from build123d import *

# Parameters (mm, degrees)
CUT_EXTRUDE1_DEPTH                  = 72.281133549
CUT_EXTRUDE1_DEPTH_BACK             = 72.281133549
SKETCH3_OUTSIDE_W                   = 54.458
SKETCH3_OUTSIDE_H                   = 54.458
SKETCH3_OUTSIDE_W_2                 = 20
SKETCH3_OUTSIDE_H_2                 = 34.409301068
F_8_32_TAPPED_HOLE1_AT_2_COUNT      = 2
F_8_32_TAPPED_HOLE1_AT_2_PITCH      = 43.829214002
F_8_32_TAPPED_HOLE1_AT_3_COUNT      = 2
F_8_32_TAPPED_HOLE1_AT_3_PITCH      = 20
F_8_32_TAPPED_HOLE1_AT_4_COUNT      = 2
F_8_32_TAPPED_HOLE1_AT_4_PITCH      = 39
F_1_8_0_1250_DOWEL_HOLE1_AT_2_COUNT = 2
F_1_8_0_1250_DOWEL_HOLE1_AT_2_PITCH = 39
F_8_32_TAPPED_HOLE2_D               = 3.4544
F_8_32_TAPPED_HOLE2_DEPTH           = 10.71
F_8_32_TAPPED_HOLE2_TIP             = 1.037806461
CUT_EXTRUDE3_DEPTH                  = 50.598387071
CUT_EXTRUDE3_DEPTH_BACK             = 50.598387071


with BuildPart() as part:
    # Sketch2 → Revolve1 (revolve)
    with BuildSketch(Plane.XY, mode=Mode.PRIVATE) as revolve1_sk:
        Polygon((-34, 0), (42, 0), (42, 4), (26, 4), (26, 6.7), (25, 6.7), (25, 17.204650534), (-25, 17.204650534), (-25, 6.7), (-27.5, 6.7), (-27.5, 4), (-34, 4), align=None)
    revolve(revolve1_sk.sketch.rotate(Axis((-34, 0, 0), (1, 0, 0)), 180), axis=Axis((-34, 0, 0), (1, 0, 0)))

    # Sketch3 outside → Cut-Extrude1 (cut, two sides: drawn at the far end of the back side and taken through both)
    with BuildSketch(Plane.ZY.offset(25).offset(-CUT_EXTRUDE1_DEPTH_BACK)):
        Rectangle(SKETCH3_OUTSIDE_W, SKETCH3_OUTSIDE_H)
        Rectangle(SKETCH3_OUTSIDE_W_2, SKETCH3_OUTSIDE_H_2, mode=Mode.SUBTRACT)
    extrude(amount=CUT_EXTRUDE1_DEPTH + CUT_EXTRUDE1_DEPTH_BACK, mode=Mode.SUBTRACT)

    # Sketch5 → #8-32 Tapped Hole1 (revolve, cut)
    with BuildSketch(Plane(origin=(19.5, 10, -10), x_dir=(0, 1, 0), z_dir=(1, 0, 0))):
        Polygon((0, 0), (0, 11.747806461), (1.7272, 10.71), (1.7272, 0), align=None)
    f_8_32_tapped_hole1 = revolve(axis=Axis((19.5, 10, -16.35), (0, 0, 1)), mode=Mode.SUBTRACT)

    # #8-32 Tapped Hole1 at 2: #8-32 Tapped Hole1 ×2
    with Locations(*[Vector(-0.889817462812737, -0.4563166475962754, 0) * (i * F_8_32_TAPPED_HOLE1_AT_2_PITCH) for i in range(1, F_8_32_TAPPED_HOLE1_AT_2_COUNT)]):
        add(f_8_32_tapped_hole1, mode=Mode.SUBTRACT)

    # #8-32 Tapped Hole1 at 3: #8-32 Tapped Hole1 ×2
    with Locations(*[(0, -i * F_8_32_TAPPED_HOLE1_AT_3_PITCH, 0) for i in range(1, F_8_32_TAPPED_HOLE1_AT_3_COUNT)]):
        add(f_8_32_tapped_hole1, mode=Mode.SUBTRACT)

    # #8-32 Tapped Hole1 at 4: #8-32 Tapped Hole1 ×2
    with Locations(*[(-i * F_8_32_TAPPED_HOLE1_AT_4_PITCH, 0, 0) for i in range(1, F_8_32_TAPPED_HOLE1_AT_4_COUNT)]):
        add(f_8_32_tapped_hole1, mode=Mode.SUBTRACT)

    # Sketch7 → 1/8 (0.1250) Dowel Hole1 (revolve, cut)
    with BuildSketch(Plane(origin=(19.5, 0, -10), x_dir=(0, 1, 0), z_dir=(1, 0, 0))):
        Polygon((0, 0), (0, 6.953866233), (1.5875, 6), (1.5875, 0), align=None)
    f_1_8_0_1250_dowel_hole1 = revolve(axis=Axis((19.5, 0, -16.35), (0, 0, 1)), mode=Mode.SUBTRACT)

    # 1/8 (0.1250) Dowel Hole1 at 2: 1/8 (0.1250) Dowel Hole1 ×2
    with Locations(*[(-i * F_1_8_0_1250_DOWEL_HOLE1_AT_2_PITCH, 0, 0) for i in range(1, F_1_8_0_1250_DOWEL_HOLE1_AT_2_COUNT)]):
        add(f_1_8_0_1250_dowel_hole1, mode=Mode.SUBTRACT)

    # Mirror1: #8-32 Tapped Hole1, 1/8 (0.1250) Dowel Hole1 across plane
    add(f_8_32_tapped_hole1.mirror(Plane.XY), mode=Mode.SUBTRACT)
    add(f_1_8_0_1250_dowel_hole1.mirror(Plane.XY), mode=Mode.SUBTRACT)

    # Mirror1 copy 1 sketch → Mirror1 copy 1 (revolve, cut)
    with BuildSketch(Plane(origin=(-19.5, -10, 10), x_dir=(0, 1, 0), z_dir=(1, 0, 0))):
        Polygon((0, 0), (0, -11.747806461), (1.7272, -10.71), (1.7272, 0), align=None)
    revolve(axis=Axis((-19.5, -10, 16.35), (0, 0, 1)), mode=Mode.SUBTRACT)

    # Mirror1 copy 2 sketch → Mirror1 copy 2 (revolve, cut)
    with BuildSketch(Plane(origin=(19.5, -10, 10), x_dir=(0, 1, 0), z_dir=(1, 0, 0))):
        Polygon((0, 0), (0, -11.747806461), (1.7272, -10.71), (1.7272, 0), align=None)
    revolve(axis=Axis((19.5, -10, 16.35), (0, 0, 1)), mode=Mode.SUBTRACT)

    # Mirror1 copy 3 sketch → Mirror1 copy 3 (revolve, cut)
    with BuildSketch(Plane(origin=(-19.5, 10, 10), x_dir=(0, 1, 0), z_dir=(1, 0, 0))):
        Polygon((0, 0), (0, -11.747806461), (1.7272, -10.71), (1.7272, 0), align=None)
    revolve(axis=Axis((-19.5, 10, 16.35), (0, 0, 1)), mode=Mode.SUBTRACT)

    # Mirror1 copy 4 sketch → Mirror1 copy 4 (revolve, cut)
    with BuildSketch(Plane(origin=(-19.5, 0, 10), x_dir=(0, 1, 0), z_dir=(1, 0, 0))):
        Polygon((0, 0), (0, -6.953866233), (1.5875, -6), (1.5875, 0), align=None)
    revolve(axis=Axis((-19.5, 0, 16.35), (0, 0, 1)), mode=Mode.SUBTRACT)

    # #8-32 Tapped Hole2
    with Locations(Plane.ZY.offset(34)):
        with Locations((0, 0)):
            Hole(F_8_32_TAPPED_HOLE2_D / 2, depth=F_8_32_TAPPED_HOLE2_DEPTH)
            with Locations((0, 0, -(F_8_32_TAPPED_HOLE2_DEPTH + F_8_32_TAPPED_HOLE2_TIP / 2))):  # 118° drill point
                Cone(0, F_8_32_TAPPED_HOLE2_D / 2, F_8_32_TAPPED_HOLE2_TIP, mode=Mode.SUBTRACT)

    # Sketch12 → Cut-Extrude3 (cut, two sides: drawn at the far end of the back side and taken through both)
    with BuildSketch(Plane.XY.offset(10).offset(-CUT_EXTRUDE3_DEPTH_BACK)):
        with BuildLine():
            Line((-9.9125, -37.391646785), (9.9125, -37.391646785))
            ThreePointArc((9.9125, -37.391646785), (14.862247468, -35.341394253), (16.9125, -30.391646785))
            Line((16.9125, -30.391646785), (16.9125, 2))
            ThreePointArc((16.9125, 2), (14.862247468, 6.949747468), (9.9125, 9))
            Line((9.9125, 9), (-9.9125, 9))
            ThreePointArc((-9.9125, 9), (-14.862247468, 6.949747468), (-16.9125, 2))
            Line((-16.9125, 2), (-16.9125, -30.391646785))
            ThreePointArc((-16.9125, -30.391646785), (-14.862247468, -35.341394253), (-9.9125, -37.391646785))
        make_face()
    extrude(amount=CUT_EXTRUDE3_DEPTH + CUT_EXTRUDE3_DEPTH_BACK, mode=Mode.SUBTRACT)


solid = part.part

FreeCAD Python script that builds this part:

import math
import FreeCAD as App
import Part
import Sketcher

V = App.Vector
Q = App.Units.Quantity


def add_polygon(sketch, points):
    """Adds a closed chain of lines whose ends are joined by coincident constraints."""
    first, n = sketch.GeometryCount, len(points)
    for a, b in zip(points, points[1:] + points[:1]):
        sketch.addGeometry(Part.LineSegment(App.Vector(*a, 0), App.Vector(*b, 0)), False)
    for i in range(n):
        sketch.addConstraint(Sketcher.Constraint("Coincident", first + i, 2, first + (i + 1) % n, 1))

doc = App.newDocument("Part")
body = doc.addObject("PartDesign::Body", "Body")

# Sketch on XY plane
sketch1 = body.newObject("Sketcher::SketchObject", "Sketch")
sketch1.AttachmentSupport = (doc.getObject("XY_Plane"), [""])
sketch1.MapMode = "FlatFace"
add_polygon(sketch1, [(-34, 0), (42, 0), (42, 4), (26, 4), (26, 6.7), (25, 6.7), (25, 17.2), (-25, 17.2), (-25, 6.7), (-27.5, 6.7), (-27.5, 4), (-34, 4)])  # lines 0-11
sketch1.addConstraint([
    Sketcher.Constraint("Horizontal", 0),
    Sketcher.Constraint("Vertical", 1),
    Sketcher.Constraint("Horizontal", 2),
    Sketcher.Constraint("Vertical", 3),
    Sketcher.Constraint("Horizontal", 4),
    Sketcher.Constraint("Vertical", 5),
    Sketcher.Constraint("Horizontal", 6),
    Sketcher.Constraint("Vertical", 7),
    Sketcher.Constraint("Horizontal", 8),
    Sketcher.Constraint("Vertical", 9),
    Sketcher.Constraint("Horizontal", 10),
    Sketcher.Constraint("Vertical", 11),
    Sketcher.Constraint("Symmetric", 4, 2, 7, 2, -2),
    Sketcher.Constraint("PointOnObject", 0, 2, -1),
    Sketcher.Constraint("Horizontal", 2, 2, 9, 2),
    Sketcher.Constraint("DistanceX", 0, 1, 0, 2, 76.0),
    Sketcher.Constraint("DistanceX", 2, 2, 2, 1, 16.0),
    Sketcher.Constraint("DistanceX", 4, 2, 4, 1, 1.0),
    Sketcher.Constraint("DistanceX", 6, 2, 6, 1, 50.0),
    Sketcher.Constraint("DistanceY", 1, 1, 1, 2, 4.0),
    Sketcher.Constraint("DistanceX", 8, 2, 8, 1, 2.5),
    Sketcher.Constraint("DistanceY", 3, 1, 3, 2, 2.7),
    Sketcher.Constraint("DistanceY", 5, 1, 5, 2, 10.504651),
])
revolution = body.newObject("PartDesign::Revolution", "Revolution")
revolution.Profile = sketch1
revolution.ReferenceAxis = (sketch1, ["H_Axis"])
revolution.Angle = 360

# Sketch on YZ plane
sketch2 = body.newObject("Sketcher::SketchObject", "Sketch001")
sketch2.AttachmentSupport = (doc.getObject("YZ_Plane"), [""])
sketch2.MapMode = "FlatFace"
sketch2.AttachmentOffset = App.Placement(V(0, 0, -25), App.Rotation())
add_polygon(sketch2, [(27, -27), (-27, -27), (-27, 27), (27, 27)])  # lines 0-3
add_polygon(sketch2, [(-17, 10), (-17, -10), (17, -10), (17, 10)])  # lines 4-7
sketch2.addConstraint([
    Sketcher.Constraint("Horizontal", 0),
    Sketcher.Constraint("Vertical", 1),
    Sketcher.Constraint("Horizontal", 2),
    Sketcher.Constraint("Vertical", 3),
    Sketcher.Constraint("Vertical", 4),
    Sketcher.Constraint("Horizontal", 5),
    Sketcher.Constraint("Vertical", 6),
    Sketcher.Constraint("Horizontal", 7),
    Sketcher.Constraint("Symmetric", 0, 2, 2, 2, -1, 1),
    Sketcher.Constraint("Symmetric", 4, 2, 6, 2, -1, 1),
    Sketcher.Constraint("Equal", 2, 1),
    Sketcher.Constraint("DistanceY", 4, 2, 4, 1, 20.0),
    Sketcher.Constraint("DistanceX", 0, 2, 0, 1, 54.458),
    Sketcher.Constraint("DistanceX", 5, 1, 5, 2, 34.409301),
])
pocket1 = body.newObject("PartDesign::Pocket", "Pocket")
pocket1.Profile = sketch2
pocket1.Type = "ThroughAll"
pocket1.Midplane = True

# Sketch on YZ plane
sketch3 = body.newObject("Sketcher::SketchObject", "Sketch002")
sketch3.AttachmentSupport = (doc.getObject("YZ_Plane"), [""])
sketch3.MapMode = "FlatFace"
sketch3.AttachmentOffset = App.Placement(V(0, 0, 19.5), App.Rotation())
add_polygon(sketch3, [(10, 1.7), (10, -10), (11.7, -10), (11.7, 0.7)])  # lines 0-3
sketch3.addGeometry(Part.LineSegment(V(10, -10, 0), V(10, 1.7, 0)), True)  # axis
sketch3.addConstraint([
    Sketcher.Constraint("Vertical", 0),
    Sketcher.Constraint("Horizontal", 1),
    Sketcher.Constraint("Vertical", 2),
    Sketcher.Constraint("Vertical", 4),
    Sketcher.Constraint("Coincident", 4, 1, 0, 2),
    Sketcher.Constraint("Equal", 0, 4),
    Sketcher.Constraint("Angle", 3, Q("149 deg")),
    Sketcher.Constraint("DistanceX", -1, 1, 0, 2, 10.0),
    Sketcher.Constraint("DistanceY", 0, 2, -1, 1, 10.0),
    Sketcher.Constraint("DistanceY", 2, 1, 2, 2, 10.71),
    Sketcher.Constraint("DistanceX", 1, 1, 1, 2, 1.7272),
])
groove = body.newObject("PartDesign::Groove", "Groove")
groove.Profile = sketch3
groove.ReferenceAxis = (sketch3, ["Axis0"])
groove.Angle = 360
doc.recompute()

datumline = body.newObject("PartDesign::Line", "DatumLine")
datumline.Placement = App.Placement(V(0, 0, 0), App.Rotation(V(0, 0, 1), V(-0.889817463, -0.456316648, 0)))
linearpattern = body.newObject("PartDesign::LinearPattern", "LinearPattern")
linearpattern.Originals = [groove]
linearpattern.Direction = (datumline, [""])
linearpattern.Mode = "offset"
linearpattern.Offset = 43.829214
linearpattern.Occurrences = 2
body.Tip = linearpattern
doc.recompute()

linearpattern2 = body.newObject("PartDesign::LinearPattern", "LinearPattern001")
linearpattern2.Originals = [groove]
linearpattern2.Direction = (doc.getObject("Y_Axis"), [""])
linearpattern2.Mode = "offset"
linearpattern2.Offset = 20
linearpattern2.Occurrences = 2
linearpattern2.Reversed = True
body.Tip = linearpattern2
doc.recompute()

linearpattern3 = body.newObject("PartDesign::LinearPattern", "LinearPattern002")
linearpattern3.Originals = [groove]
linearpattern3.Direction = (doc.getObject("X_Axis"), [""])
linearpattern3.Mode = "offset"
linearpattern3.Offset = 39
linearpattern3.Occurrences = 2
linearpattern3.Reversed = True
body.Tip = linearpattern3

# Sketch on YZ plane
sketch4 = body.newObject("Sketcher::SketchObject", "Sketch003")
sketch4.AttachmentSupport = (doc.getObject("YZ_Plane"), [""])
sketch4.MapMode = "FlatFace"
sketch4.AttachmentOffset = App.Placement(V(0, 0, 19.5), App.Rotation())
add_polygon(sketch4, [(0, -3), (0, -10), (1.6, -10), (1.6, -4)])  # lines 0-3
sketch4.addConstraint([
    Sketcher.Constraint("Vertical", 0),
    Sketcher.Constraint("Horizontal", 1),
    Sketcher.Constraint("Vertical", 2),
    Sketcher.Constraint("PointOnObject", 0, 2, -2),
    Sketcher.Constraint("DistanceY", 2, 1, 2, 2, 6.0),
    Sketcher.Constraint("Angle", 3, Q("149 deg")),
    Sketcher.Constraint("DistanceY", 0, 2, -1, 1, 10.0),
    Sketcher.Constraint("DistanceX", 1, 1, 1, 2, 1.5875),
])
groove2 = body.newObject("PartDesign::Groove", "Groove001")
groove2.Profile = sketch4
groove2.ReferenceAxis = (sketch4, ["V_Axis"])
groove2.Angle = 360
doc.recompute()

linearpattern4 = body.newObject("PartDesign::LinearPattern", "LinearPattern003")
linearpattern4.Originals = [groove2]
linearpattern4.Direction = (doc.getObject("X_Axis"), [""])
linearpattern4.Mode = "offset"
linearpattern4.Offset = 39
linearpattern4.Occurrences = 2
linearpattern4.Reversed = True
body.Tip = linearpattern4
doc.recompute()

mirrored = body.newObject("PartDesign::Mirrored", "Mirrored")
mirrored.Originals = [groove, groove2]
mirrored.MirrorPlane = (doc.getObject("XY_Plane"), [""])
body.Tip = mirrored

# Sketch on YZ plane
sketch5 = body.newObject("Sketcher::SketchObject", "Sketch004")
sketch5.AttachmentSupport = (doc.getObject("YZ_Plane"), [""])
sketch5.MapMode = "FlatFace"
sketch5.AttachmentOffset = App.Placement(V(0, 0, -19.5), App.Rotation())
add_polygon(sketch5, [(-10, 10), (-10, -1.7), (-8.3, -0.7), (-8.3, 10)])  # lines 0-3
sketch5.addGeometry(Part.LineSegment(V(-10, -1.7, 0), V(-10, 10, 0)), True)  # axis
sketch5.addConstraint([
    Sketcher.Constraint("Vertical", 0),
    Sketcher.Constraint("Vertical", 2),
    Sketcher.Constraint("Horizontal", 3),
    Sketcher.Constraint("Vertical", 4),
    Sketcher.Constraint("Coincident", 4, 1, 0, 2),
    Sketcher.Constraint("Horizontal", 2, 2, 4, 2),
    Sketcher.Constraint("Angle", 1, Q("31 deg")),
    Sketcher.Constraint("DistanceX", 0, 2, -1, 1, 10.0),
    Sketcher.Constraint("DistanceY", -1, 1, 2, 2, 10.0),
    Sketcher.Constraint("DistanceY", 2, 1, 2, 2, 10.71),
    Sketcher.Constraint("DistanceX", 3, 2, 3, 1, 1.7272),
])
groove3 = body.newObject("PartDesign::Groove", "Groove002")
groove3.Profile = sketch5
groove3.ReferenceAxis = (sketch5, ["Axis0"])
groove3.Angle = 360

# Sketch on YZ plane
sketch6 = body.newObject("Sketcher::SketchObject", "Sketch005")
sketch6.AttachmentSupport = (doc.getObject("YZ_Plane"), [""])
sketch6.MapMode = "FlatFace"
sketch6.AttachmentOffset = App.Placement(V(0, 0, 19.5), App.Rotation())
add_polygon(sketch6, [(-10, 10), (-10, -1.7), (-8.3, -0.7), (-8.3, 10)])  # lines 0-3
sketch6.addGeometry(Part.LineSegment(V(-10, -1.7, 0), V(-10, 10, 0)), True)  # axis
sketch6.addConstraint([
    Sketcher.Constraint("Vertical", 0),
    Sketcher.Constraint("Vertical", 2),
    Sketcher.Constraint("Horizontal", 3),
    Sketcher.Constraint("Vertical", 4),
    Sketcher.Constraint("Coincident", 4, 1, 0, 2),
    Sketcher.Constraint("Horizontal", 2, 2, 4, 2),
    Sketcher.Constraint("Angle", 1, Q("31 deg")),
    Sketcher.Constraint("DistanceX", 0, 2, -1, 1, 10.0),
    Sketcher.Constraint("DistanceY", -1, 1, 2, 2, 10.0),
    Sketcher.Constraint("DistanceY", 2, 1, 2, 2, 10.71),
    Sketcher.Constraint("DistanceX", 3, 2, 3, 1, 1.7272),
])
groove4 = body.newObject("PartDesign::Groove", "Groove003")
groove4.Profile = sketch6
groove4.ReferenceAxis = (sketch6, ["Axis0"])
groove4.Angle = 360

# Sketch on YZ plane
sketch7 = body.newObject("Sketcher::SketchObject", "Sketch006")
sketch7.AttachmentSupport = (doc.getObject("YZ_Plane"), [""])
sketch7.MapMode = "FlatFace"
sketch7.AttachmentOffset = App.Placement(V(0, 0, -19.5), App.Rotation())
add_polygon(sketch7, [(10, 10), (10, -1.7), (11.7, -0.7), (11.7, 10)])  # lines 0-3
sketch7.addGeometry(Part.LineSegment(V(10, -1.7, 0), V(10, 10, 0)), True)  # axis
sketch7.addConstraint([
    Sketcher.Constraint("Vertical", 0),
    Sketcher.Constraint("Vertical", 2),
    Sketcher.Constraint("Horizontal", 3),
    Sketcher.Constraint("Vertical", 4),
    Sketcher.Constraint("Coincident", 4, 1, 0, 2),
    Sketcher.Constraint("Horizontal", 2, 2, 4, 2),
    Sketcher.Constraint("Angle", 1, Q("31 deg")),
    Sketcher.Constraint("DistanceX", -1, 1, 0, 2, 10.0),
    Sketcher.Constraint("DistanceY", -1, 1, 2, 2, 10.0),
    Sketcher.Constraint("DistanceY", 2, 1, 2, 2, 10.71),
    Sketcher.Constraint("DistanceX", 3, 2, 3, 1, 1.7272),
])
groove5 = body.newObject("PartDesign::Groove", "Groove004")
groove5.Profile = sketch7
groove5.ReferenceAxis = (sketch7, ["Axis0"])
groove5.Angle = 360

# Sketch on YZ plane
sketch8 = body.newObject("Sketcher::SketchObject", "Sketch007")
sketch8.AttachmentSupport = (doc.getObject("YZ_Plane"), [""])
sketch8.MapMode = "FlatFace"
sketch8.AttachmentOffset = App.Placement(V(0, 0, -19.5), App.Rotation())
add_polygon(sketch8, [(0, 10), (0, 3), (1.6, 4), (1.6, 10)])  # lines 0-3
sketch8.addConstraint([
    Sketcher.Constraint("Vertical", 0),
    Sketcher.Constraint("Vertical", 2),
    Sketcher.Constraint("Horizontal", 3),
    Sketcher.Constraint("PointOnObject", 0, 2, -2),
    Sketcher.Constraint("DistanceY", 2, 1, 2, 2, 6.0),
    Sketcher.Constraint("Angle", 1, Q("31 deg")),
    Sketcher.Constraint("DistanceY", -1, 1, 1, 2, 4.0),
    Sketcher.Constraint("DistanceX", 3, 2, 3, 1, 1.5875),
])
groove6 = body.newObject("PartDesign::Groove", "Groove005")
groove6.Profile = sketch8
groove6.ReferenceAxis = (sketch8, ["V_Axis"])
groove6.Angle = 360

# Sketch on YZ plane
sketch9 = body.newObject("Sketcher::SketchObject", "Sketch008")
sketch9.AttachmentSupport = (doc.getObject("YZ_Plane"), [""])
sketch9.MapMode = "FlatFace"
sketch9.AttachmentOffset = App.Placement(V(0, 0, -34), App.Rotation())
sketch9.addGeometry(Part.Circle(V(0, 0, 0), V(0, 0, 1), 1.7), False)
sketch9.addConstraint([
    Sketcher.Constraint("Coincident", 0, 3, -1, 1),
    Sketcher.Constraint("Diameter", 0, 3.4544),
])
doc.recompute()
hole = body.newObject("PartDesign::Hole", "Hole")
hole.Profile = sketch9
hole.ThreadType = "None"
hole.Diameter = 3.4544
hole.DepthType = "Dimension"
hole.Depth = 10.71
hole.DrillPoint = "Angled"
hole.DrillPointAngle = 118
hole.Reversed = True

# Sketch on XY plane
sketch10 = body.newObject("Sketcher::SketchObject", "Sketch009")
sketch10.AttachmentSupport = (doc.getObject("XY_Plane"), [""])
sketch10.MapMode = "FlatFace"
sketch10.AttachmentOffset = App.Placement(V(0, 0, 10), App.Rotation())
sketch10.addGeometry([
    Part.LineSegment(V(-10, -37, 0), V(10, -37, 0)),  # 0
    Part.ArcOfCircle(Part.Circle(V(10, -30, 0), V(0, 0, 1), 7), math.radians(-90), math.radians(0)),  # 1
    Part.LineSegment(V(17, -30, 0), V(17, 2, 0)),  # 2
    Part.ArcOfCircle(Part.Circle(V(10, 2, 0), V(0, 0, 1), 7), math.radians(0), math.radians(90)),  # 3
    Part.LineSegment(V(10, 9, 0), V(-10, 9, 0)),  # 4
    Part.ArcOfCircle(Part.Circle(V(-10, 2, 0), V(0, 0, 1), 7), math.radians(90), math.radians(180)),  # 5
    Part.LineSegment(V(-17, 2, 0), V(-17, -30, 0)),  # 6
    Part.ArcOfCircle(Part.Circle(V(-10, -30, 0), V(0, 0, 1), 7), math.radians(-180), math.radians(-90)),  # 7
], False)
sketch10.addConstraint([
    Sketcher.Constraint("Tangent", 0, 2, 1, 1),
    Sketcher.Constraint("Tangent", 1, 2, 2, 1),
    Sketcher.Constraint("Tangent", 2, 2, 3, 1),
    Sketcher.Constraint("Tangent", 3, 2, 4, 1),
    Sketcher.Constraint("Tangent", 4, 2, 5, 1),
    Sketcher.Constraint("Tangent", 5, 2, 6, 1),
    Sketcher.Constraint("Tangent", 6, 2, 7, 1),
    Sketcher.Constraint("Tangent", 7, 2, 0, 1),
    Sketcher.Constraint("Horizontal", 0),
    Sketcher.Constraint("Vertical", 2),
    Sketcher.Constraint("Horizontal", 4),
    Sketcher.Constraint("Vertical", 6),
    Sketcher.Constraint("Equal", 1, 3),
    Sketcher.Constraint("Equal", 3, 5),
    Sketcher.Constraint("Equal", 5, 7),
    Sketcher.Constraint("Radius", 1, 7.0),
    Sketcher.Constraint("DistanceY", -1, 1, 3, 3, 2.0),
    Sketcher.Constraint("DistanceX", 0, 1, 0, 2, 19.825),
    Sketcher.Constraint("DistanceX", -1, 1, 1, 3, 9.9125),
    Sketcher.Constraint("DistanceY", 2, 1, 2, 2, 32.391647),
])
pocket2 = body.newObject("PartDesign::Pocket", "Pocket001")
pocket2.Profile = sketch10
pocket2.Type = "ThroughAll"
pocket2.Midplane = True

doc.recompute()
